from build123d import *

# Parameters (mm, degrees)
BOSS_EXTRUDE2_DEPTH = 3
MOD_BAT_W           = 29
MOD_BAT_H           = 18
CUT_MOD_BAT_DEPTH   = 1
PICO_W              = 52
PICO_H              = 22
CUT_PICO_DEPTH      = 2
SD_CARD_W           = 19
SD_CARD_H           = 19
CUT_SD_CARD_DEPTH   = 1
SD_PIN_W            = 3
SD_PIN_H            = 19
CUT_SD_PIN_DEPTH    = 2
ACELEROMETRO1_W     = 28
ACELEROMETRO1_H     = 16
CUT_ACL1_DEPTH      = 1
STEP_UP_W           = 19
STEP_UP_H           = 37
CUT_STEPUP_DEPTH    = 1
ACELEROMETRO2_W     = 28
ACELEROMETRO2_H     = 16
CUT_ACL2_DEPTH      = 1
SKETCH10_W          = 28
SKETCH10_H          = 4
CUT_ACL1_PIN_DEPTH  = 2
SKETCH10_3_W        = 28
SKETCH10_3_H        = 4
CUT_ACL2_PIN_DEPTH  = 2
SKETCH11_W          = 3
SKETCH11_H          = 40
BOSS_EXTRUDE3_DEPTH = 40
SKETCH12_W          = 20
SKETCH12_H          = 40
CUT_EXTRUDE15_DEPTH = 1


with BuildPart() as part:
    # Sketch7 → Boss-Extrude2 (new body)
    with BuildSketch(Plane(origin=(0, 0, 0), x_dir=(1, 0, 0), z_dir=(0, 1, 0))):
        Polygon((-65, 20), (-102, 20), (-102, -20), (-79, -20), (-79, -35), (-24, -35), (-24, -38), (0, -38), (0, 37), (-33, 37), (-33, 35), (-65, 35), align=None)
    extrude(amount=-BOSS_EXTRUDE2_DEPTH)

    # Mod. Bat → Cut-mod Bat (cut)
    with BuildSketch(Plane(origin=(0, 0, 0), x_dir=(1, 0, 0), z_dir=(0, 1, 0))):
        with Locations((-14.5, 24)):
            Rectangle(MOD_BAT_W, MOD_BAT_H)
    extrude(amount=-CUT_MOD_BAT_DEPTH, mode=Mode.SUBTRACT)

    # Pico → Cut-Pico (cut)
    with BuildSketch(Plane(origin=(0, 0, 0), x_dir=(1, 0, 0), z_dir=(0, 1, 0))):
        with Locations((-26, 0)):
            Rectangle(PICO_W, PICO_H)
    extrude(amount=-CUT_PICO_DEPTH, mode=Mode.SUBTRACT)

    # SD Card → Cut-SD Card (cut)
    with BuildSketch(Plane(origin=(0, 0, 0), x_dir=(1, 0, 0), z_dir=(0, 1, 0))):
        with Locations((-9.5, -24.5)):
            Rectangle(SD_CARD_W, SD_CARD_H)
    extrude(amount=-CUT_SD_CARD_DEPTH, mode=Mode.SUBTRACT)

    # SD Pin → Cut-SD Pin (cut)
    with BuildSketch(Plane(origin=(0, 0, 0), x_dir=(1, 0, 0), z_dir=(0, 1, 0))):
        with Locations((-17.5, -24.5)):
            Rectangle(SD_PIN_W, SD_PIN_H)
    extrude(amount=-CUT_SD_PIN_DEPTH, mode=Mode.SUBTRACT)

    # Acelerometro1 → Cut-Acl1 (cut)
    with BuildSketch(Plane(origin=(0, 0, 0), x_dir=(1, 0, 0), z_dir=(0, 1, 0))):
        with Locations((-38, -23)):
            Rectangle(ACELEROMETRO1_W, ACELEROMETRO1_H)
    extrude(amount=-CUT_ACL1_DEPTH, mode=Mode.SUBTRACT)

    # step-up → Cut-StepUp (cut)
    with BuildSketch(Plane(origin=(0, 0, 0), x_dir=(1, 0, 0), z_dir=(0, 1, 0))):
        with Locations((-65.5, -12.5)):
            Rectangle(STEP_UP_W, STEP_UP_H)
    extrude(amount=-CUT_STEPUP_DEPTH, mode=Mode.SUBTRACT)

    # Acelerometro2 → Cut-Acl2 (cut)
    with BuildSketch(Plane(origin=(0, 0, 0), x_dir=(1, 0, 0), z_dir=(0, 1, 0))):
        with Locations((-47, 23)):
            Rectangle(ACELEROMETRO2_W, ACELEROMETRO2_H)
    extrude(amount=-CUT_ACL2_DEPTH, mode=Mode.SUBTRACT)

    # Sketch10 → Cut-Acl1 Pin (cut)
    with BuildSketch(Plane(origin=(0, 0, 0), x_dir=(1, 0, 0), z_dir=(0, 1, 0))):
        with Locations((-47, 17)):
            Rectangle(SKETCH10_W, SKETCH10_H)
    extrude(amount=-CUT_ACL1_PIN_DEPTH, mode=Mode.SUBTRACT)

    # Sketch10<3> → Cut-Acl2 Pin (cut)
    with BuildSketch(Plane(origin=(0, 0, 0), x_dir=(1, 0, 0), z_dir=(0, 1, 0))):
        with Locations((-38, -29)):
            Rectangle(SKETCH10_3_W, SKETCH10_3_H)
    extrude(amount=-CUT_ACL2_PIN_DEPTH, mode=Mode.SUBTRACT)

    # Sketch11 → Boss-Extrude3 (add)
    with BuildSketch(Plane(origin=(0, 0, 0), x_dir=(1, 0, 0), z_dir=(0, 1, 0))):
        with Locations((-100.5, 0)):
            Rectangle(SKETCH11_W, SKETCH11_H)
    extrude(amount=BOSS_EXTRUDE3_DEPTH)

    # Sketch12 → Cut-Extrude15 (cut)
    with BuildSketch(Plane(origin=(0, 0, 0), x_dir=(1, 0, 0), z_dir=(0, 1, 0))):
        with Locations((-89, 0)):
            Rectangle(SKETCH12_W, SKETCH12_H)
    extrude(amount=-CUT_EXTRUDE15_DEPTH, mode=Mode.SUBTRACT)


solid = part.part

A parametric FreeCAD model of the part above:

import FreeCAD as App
import Part
import Sketcher


def add_polygon(sketch, points):
    """Adds a closed chain of lines whose ends are joined by coincident constraints."""
    first, n = sketch.GeometryCount, len(points)
    for a, b in zip(points, points[1:] + points[:1]):
        sketch.addGeometry(Part.LineSegment(App.Vector(*a, 0), App.Vector(*b, 0)), False)
    for i in range(n):
        sketch.addConstraint(Sketcher.Constraint("Coincident", first + i, 2, first + (i + 1) % n, 1))

doc = App.newDocument("Part")
body = doc.addObject("PartDesign::Body", "Body")

# Sketch on XZ plane
sketch1 = body.newObject("Sketcher::SketchObject", "Sketch")
sketch1.AttachmentSupport = (doc.getObject("XZ_Plane"), [""])
sketch1.MapMode = "FlatFace"
add_polygon(sketch1, [(-65, -20), (-102, -20), (-102, 20), (-79, 20), (-79, 35), (-24, 35), (-24, 38), (0, 38), (0, -37), (-33, -37), (-33, -35), (-65, -35)])  # lines 0-11
sketch1.addConstraint(Sketcher.Constraint("Horizontal", 0))
sketch1.addConstraint(Sketcher.Constraint("Vertical", 1))
sketch1.addConstraint(Sketcher.Constraint("Horizontal", 2))
sketch1.addConstraint(Sketcher.Constraint("Vertical", 3))
sketch1.addConstraint(Sketcher.Constraint("Horizontal", 4))
sketch1.addConstraint(Sketcher.Constraint("Vertical", 5))
sketch1.addConstraint(Sketcher.Constraint("Horizontal", 6))
sketch1.addConstraint(Sketcher.Constraint("Vertical", 7))
sketch1.addConstraint(Sketcher.Constraint("Horizontal", 8))
sketch1.addConstraint(Sketcher.Constraint("Vertical", 9))
sketch1.addConstraint(Sketcher.Constraint("Horizontal", 10))
sketch1.addConstraint(Sketcher.Constraint("Vertical", 11))
sketch1.addConstraint(Sketcher.Constraint("PointOnObject", 6, 2, -2))
sketch1.addConstraint(Sketcher.Constraint("Equal", 3, 11))
sketch1.addConstraint(Sketcher.Constraint("DistanceX", 0, 2, 0, 1, 37.0))
sketch1.addConstraint(Sketcher.Constraint("DistanceX", 2, 1, 2, 2, 23.0))
sketch1.addConstraint(Sketcher.Constraint("DistanceX", 4, 1, 4, 2, 55.0))
sketch1.addConstraint(Sketcher.Constraint("DistanceX", 6, 1, 6, 2, 24.0))
sketch1.addConstraint(Sketcher.Constraint("DistanceX", 8, 2, 8, 1, 33.0))
sketch1.addConstraint(Sketcher.Constraint("DistanceY", 1, 1, 1, 2, 40.0))
sketch1.addConstraint(Sketcher.Constraint("DistanceY", 3, 1, 3, 2, 15.0))
sketch1.addConstraint(Sketcher.Constraint("DistanceY", 5, 1, 5, 2, 3.0))
sketch1.addConstraint(Sketcher.Constraint("DistanceY", 7, 2, 7, 1, 75.0))
sketch1.addConstraint(Sketcher.Constraint("DistanceY", 0, 2, -1, 1, 20.0))
pad1 = body.newObject("PartDesign::Pad", "Pad")
pad1.Profile = sketch1
pad1.Length = 3

# Sketch on XZ plane
sketch2 = body.newObject("Sketcher::SketchObject", "Sketch001")
sketch2.AttachmentSupport = (doc.getObject("XZ_Plane"), [""])
sketch2.MapMode = "FlatFace"
add_polygon(sketch2, [(-29, -33), (-29, -15), (0, -15), (0, -33)])  # lines 0-3
sketch2.addConstraint(Sketcher.Constraint("Vertical", 0))
sketch2.addConstraint(Sketcher.Constraint("Horizontal", 1))
sketch2.addConstraint(Sketcher.Constraint("Vertical", 2))
sketch2.addConstraint(Sketcher.Constraint("Horizontal", 3))
sketch2.addConstraint(Sketcher.Constraint("PointOnObject", 1, 2, -2))
sketch2.addConstraint(Sketcher.Constraint("DistanceX", 1, 1, 1, 2, 29.0))
sketch2.addConstraint(Sketcher.Constraint("DistanceY", 0, 1, 0, 2, 18.0))
sketch2.addConstraint(Sketcher.Constraint("DistanceY", 0, 2, -1, 1, 15.0))
pocket1 = body.newObject("PartDesign::Pocket", "Pocket")
pocket1.Profile = sketch2
pocket1.Length = 1
pocket1.Reversed = True

# Sketch on XZ plane
sketch3 = body.newObject("Sketcher::SketchObject", "Sketch002")
sketch3.AttachmentSupport = (doc.getObject("XZ_Plane"), [""])
sketch3.MapMode = "FlatFace"
add_polygon(sketch3, [(-52, -11), (-52, 11), (0, 11), (0, -11)])  # lines 0-3
sketch3.addConstraint(Sketcher.Constraint("Vertical", 0))
sketch3.addConstraint(Sketcher.Constraint("Horizontal", 1))
sketch3.addConstraint(Sketcher.Constraint("Vertical", 2))
sketch3.addConstraint(Sketcher.Constraint("Horizontal", 3))
sketch3.addConstraint(Sketcher.Constraint("Symmetric", 1, 2, 2, 2, -1, 1))
sketch3.addConstraint(Sketcher.Constraint("DistanceX", 1, 1, 1, 2, 52.0))
sketch3.addConstraint(Sketcher.Constraint("DistanceY", 0, 1, 0, 2, 22.0))
pocket2 = body.newObject("PartDesign::Pocket", "Pocket001")
pocket2.Profile = sketch3
pocket2.Length = 2
pocket2.Reversed = True

# Sketch on XZ plane
sketch4 = body.newObject("Sketcher::SketchObject", "Sketch003")
sketch4.AttachmentSupport = (doc.getObject("XZ_Plane"), [""])
sketch4.MapMode = "FlatFace"
add_polygon(sketch4, [(-19, 15), (-19, 34), (0, 34), (0, 15)])  # lines 0-3
sketch4.addConstraint(Sketcher.Constraint("Vertical", 0))
sketch4.addConstraint(Sketcher.Constraint("Horizontal", 1))
sketch4.addConstraint(Sketcher.Constraint("Vertical", 2))
sketch4.addConstraint(Sketcher.Constraint("Horizontal", 3))
sketch4.addConstraint(Sketcher.Constraint("PointOnObject", 1, 2, -2))
sketch4.addConstraint(Sketcher.Constraint("Equal", 3, 0))
sketch4.addConstraint(Sketcher.Constraint("DistanceX", 1, 1, 1, 2, 19.0))
sketch4.addConstraint(Sketcher.Constraint("DistanceY", -1, 1, 0, 2, 34.0))
pocket3 = body.newObject("PartDesign::Pocket", "Pocket002")
pocket3.Profile = sketch4
pocket3.Length = 1
pocket3.Reversed = True

# Sketch on XZ plane
sketch5 = body.newObject("Sketcher::SketchObject", "Sketch004")
sketch5.AttachmentSupport = (doc.getObject("XZ_Plane"), [""])
sketch5.MapMode = "FlatFace"
add_polygon(sketch5, [(-19, 15), (-19, 34), (-16, 34), (-16, 15)])  # lines 0-3
sketch5.addConstraint(Sketcher.Constraint("Vertical", 0))
sketch5.addConstraint(Sketcher.Constraint("Horizontal", 1))
sketch5.addConstraint(Sketcher.Constraint("Vertical", 2))
sketch5.addConstraint(Sketcher.Constraint("Horizontal", 3))
sketch5.addConstraint(Sketcher.Constraint("DistanceX", 1, 1, 1, 2, 3.0))
sketch5.addConstraint(Sketcher.Constraint("DistanceY", 0, 1, 0, 2, 19.0))
sketch5.addConstraint(Sketcher.Constraint("DistanceX", 0, 2, -1, 1, 19.0))
sketch5.addConstraint(Sketcher.Constraint("DistanceY", -1, 1, 0, 2, 34.0))
pocket4 = body.newObject("PartDesign::Pocket", "Pocket003")
pocket4.Profile = sketch5
pocket4.Length = 2
pocket4.Reversed = True

# Sketch on XZ plane
sketch6 = body.newObject("Sketcher::SketchObject", "Sketch005")
sketch6.AttachmentSupport = (doc.getObject("XZ_Plane"), [""])
sketch6.MapMode = "FlatFace"
add_polygon(sketch6, [(-52, 15), (-52, 31), (-24, 31), (-24, 15)])  # lines 0-3
sketch6.addConstraint(Sketcher.Constraint("Vertical", 0))
sketch6.addConstraint(Sketcher.Constraint("Horizontal", 1))
sketch6.addConstraint(Sketcher.Constraint("Vertical", 2))
sketch6.addConstraint(Sketcher.Constraint("Horizontal", 3))
sketch6.addConstraint(Sketcher.Constraint("DistanceX", 1, 1, 1, 2, 28.0))
sketch6.addConstraint(Sketcher.Constraint("DistanceY", 0, 1, 0, 2, 16.0))
sketch6.addConstraint(Sketcher.Constraint("DistanceX", 0, 2, -1, 1, 52.0))
sketch6.addConstraint(Sketcher.Constraint("DistanceY", -1, 1, 0, 2, 31.0))
pocket5 = body.newObject("PartDesign::Pocket", "Pocket004")
pocket5.Profile = sketch6
pocket5.Length = 1
pocket5.Reversed = True

# Sketch on XZ plane
sketch7 = body.newObject("Sketcher::SketchObject", "Sketch006")
sketch7.AttachmentSupport = (doc.getObject("XZ_Plane"), [""])
sketch7.MapMode = "FlatFace"
add_polygon(sketch7, [(-75, -6), (-75, 31), (-56, 31), (-56, -6)])  # lines 0-3
sketch7.addConstraint(Sketcher.Constraint("Vertical", 0))
sketch7.addConstraint(Sketcher.Constraint("Horizontal", 1))
sketch7.addConstraint(Sketcher.Constraint("Vertical", 2))
sketch7.addConstraint(Sketcher.Constraint("Horizontal", 3))
sketch7.addConstraint(Sketcher.Constraint("DistanceX", 1, 1, 1, 2, 19.0))
sketch7.addConstraint(Sketcher.Constraint("DistanceY", 0, 1, 0, 2, 37.0))
sketch7.addConstraint(Sketcher.Constraint("DistanceX", 0, 2, -1, 1, 75.0))
sketch7.addConstraint(Sketcher.Constraint("DistanceY", -1, 1, 0, 2, 31.0))
pocket6 = body.newObject("PartDesign::Pocket", "Pocket005")
pocket6.Profile = sketch7
pocket6.Length = 1
pocket6.Reversed = True

# Sketch on XZ plane
sketch8 = body.newObject("Sketcher::SketchObject", "Sketch007")
sketch8.AttachmentSupport = (doc.getObject("XZ_Plane"), [""])
sketch8.MapMode = "FlatFace"
add_polygon(sketch8, [(-61, -31), (-61, -15), (-33, -15), (-33, -31)])  # lines 0-3
sketch8.addConstraint(Sketcher.Constraint("Vertical", 0))
sketch8.addConstraint(Sketcher.Constraint("Horizontal", 1))
sketch8.addConstraint(Sketcher.Constraint("Vertical", 2))
sketch8.addConstraint(Sketcher.Constraint("Horizontal", 3))
sketch8.addConstraint(Sketcher.Constraint("DistanceX", 1, 1, 1, 2, 28.0))
sketch8.addConstraint(Sketcher.Constraint("DistanceY", 0, 1, 0, 2, 16.0))
sketch8.addConstraint(Sketcher.Constraint("DistanceX", 0, 2, -1, 1, 61.0))
sketch8.addConstraint(Sketcher.Constraint("DistanceY", 0, 2, -1, 1, 15.0))
pocket7 = body.newObject("PartDesign::Pocket", "Pocket006")
pocket7.Profile = sketch8
pocket7.Length = 1
pocket7.Reversed = True

# Sketch on XZ plane
sketch9 = body.newObject("Sketcher::SketchObject", "Sketch008")
sketch9.AttachmentSupport = (doc.getObject("XZ_Plane"), [""])
sketch9.MapMode = "FlatFace"
add_polygon(sketch9, [(-61, -19), (-61, -15), (-33, -15), (-33, -19)])  # lines 0-3
sketch9.addConstraint(Sketcher.Constraint("Vertical", 0))
sketch9.addConstraint(Sketcher.Constraint("Horizontal", 1))
sketch9.addConstraint(Sketcher.Constraint("Vertical", 2))
sketch9.addConstraint(Sketcher.Constraint("Horizontal", 3))
sketch9.addConstraint(Sketcher.Constraint("DistanceX", 1, 1, 1, 2, 28.0))
sketch9.addConstraint(Sketcher.Constraint("DistanceY", 0, 1, 0, 2, 4.0))
sketch9.addConstraint(Sketcher.Constraint("DistanceX", 0, 2, -1, 1, 61.0))
sketch9.addConstraint(Sketcher.Constraint("DistanceY", 0, 2, -1, 1, 15.0))
pocket8 = body.newObject("PartDesign::Pocket", "Pocket007")
pocket8.Profile = sketch9
pocket8.Length = 2
pocket8.Reversed = True

# Sketch on XZ plane
sketch10 = body.newObject("Sketcher::SketchObject", "Sketch009")
sketch10.AttachmentSupport = (doc.getObject("XZ_Plane"), [""])
sketch10.MapMode = "FlatFace"
add_polygon(sketch10, [(-52, 27), (-52, 31), (-24, 31), (-24, 27)])  # lines 0-3
sketch10.addConstraint(Sketcher.Constraint("Vertical", 0))
sketch10.addConstraint(Sketcher.Constraint("Horizontal", 1))
sketch10.addConstraint(Sketcher.Constraint("Vertical", 2))
sketch10.addConstraint(Sketcher.Constraint("Horizontal", 3))
sketch10.addConstraint(Sketcher.Constraint("DistanceX", 1, 1, 1, 2, 28.0))
sketch10.addConstraint(Sketcher.Constraint("DistanceY", 0, 1, 0, 2, 4.0))
sketch10.addConstraint(Sketcher.Constraint("DistanceX", 0, 2, -1, 1, 52.0))
sketch10.addConstraint(Sketcher.Constraint("DistanceY", -1, 1, 0, 2, 31.0))
pocket9 = body.newObject("PartDesign::Pocket", "Pocket008")
pocket9.Profile = sketch10
pocket9.Length = 2
pocket9.Reversed = True

# Sketch on XZ plane
sketch11 = body.newObject("Sketcher::SketchObject", "Sketch010")
sketch11.AttachmentSupport = (doc.getObject("XZ_Plane"), [""])
sketch11.MapMode = "FlatFace"
add_polygon(sketch11, [(-102, -20), (-102, 20), (-99, 20), (-99, -20)])  # lines 0-3
sketch11.addConstraint(Sketcher.Constraint("Vertical", 0))
sketch11.addConstraint(Sketcher.Constraint("Horizontal", 1))
sketch11.addConstraint(Sketcher.Constraint("Vertical", 2))
sketch11.addConstraint(Sketcher.Constraint("Horizontal", 3))
sketch11.addConstraint(Sketcher.Constraint("DistanceX", 1, 1, 1, 2, 3.0))
sketch11.addConstraint(Sketcher.Constraint("DistanceY", 0, 1, 0, 2, 40.0))
sketch11.addConstraint(Sketcher.Constraint("DistanceX", 0, 2, -1, 1, 102.0))
sketch11.addConstraint(Sketcher.Constraint("DistanceY", -1, 1, 0, 2, 20.0))
pad2 = body.newObject("PartDesign::Pad", "Pad001")
pad2.Profile = sketch11
pad2.Length = 40
pad2.Reversed = True

# Sketch on XZ plane
sketch12 = body.newObject("Sketcher::SketchObject", "Sketch011")
sketch12.AttachmentSupport = (doc.getObject("XZ_Plane"), [""])
sketch12.MapMode = "FlatFace"
add_polygon(sketch12, [(-99, -20), (-99, 20), (-79, 20), (-79, -20)])  # lines 0-3
sketch12.addConstraint(Sketcher.Constraint("Vertical", 0))
sketch12.addConstraint(Sketcher.Constraint("Horizontal", 1))
sketch12.addConstraint(Sketcher.Constraint("Vertical", 2))
sketch12.addConstraint(Sketcher.Constraint("Horizontal", 3))
sketch12.addConstraint(Sketcher.Constraint("DistanceX", 1, 1, 1, 2, 20.0))
sketch12.addConstraint(Sketcher.Constraint("DistanceY", 0, 1, 0, 2, 40.0))
sketch12.addConstraint(Sketcher.Constraint("DistanceX", 0, 2, -1, 1, 99.0))
sketch12.addConstraint(Sketcher.Constraint("DistanceY", -1, 1, 0, 2, 20.0))
pocket10 = body.newObject("PartDesign::Pocket", "Pocket009")
pocket10.Profile = sketch12
pocket10.Length = 1
pocket10.Reversed = True

doc.recompute()
